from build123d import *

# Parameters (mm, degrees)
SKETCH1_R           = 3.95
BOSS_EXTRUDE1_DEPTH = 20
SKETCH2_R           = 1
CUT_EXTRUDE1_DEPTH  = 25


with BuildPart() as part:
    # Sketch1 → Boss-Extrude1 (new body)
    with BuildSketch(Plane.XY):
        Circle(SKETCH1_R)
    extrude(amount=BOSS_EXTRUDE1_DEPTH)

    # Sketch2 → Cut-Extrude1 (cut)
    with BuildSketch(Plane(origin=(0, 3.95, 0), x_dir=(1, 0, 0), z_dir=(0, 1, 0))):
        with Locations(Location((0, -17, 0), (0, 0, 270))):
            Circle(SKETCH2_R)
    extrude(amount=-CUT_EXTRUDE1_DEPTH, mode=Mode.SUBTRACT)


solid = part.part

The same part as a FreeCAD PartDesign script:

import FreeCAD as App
import Part
import Sketcher
from FreeCAD import Vector

doc = App.newDocument("Part")
params = doc.addObject("Spreadsheet::Sheet", "Params")
for row, (alias, value) in enumerate([
    ("sketch1_diameter", "7.9 mm"),
    ("pad1_length", "20 mm"),
    ("sketch2_diameter", "2 mm"),
    ("pocket1_length", "25 mm"),
], start=1):
    params.set(f"A{row}", alias)
    params.set(f"B{row}", "=" + value)
    params.setAlias(f"B{row}", alias)

body = doc.addObject("PartDesign::Body", "Body")

# Sketch on XY plane
sketch1 = body.newObject("Sketcher::SketchObject", "Sketch")
sketch1.AttachmentSupport = (doc.getObject("XY_Plane"), [""])
sketch1.MapMode = "FlatFace"
sketch1.addGeometry(Part.Circle(Vector(0, 0, 0), Vector(0, 0, 1), 4), False)
sketch1.addConstraint(Sketcher.Constraint("Coincident", 0, 3, -1, 1))
sketch1.addConstraint(Sketcher.Constraint("Diameter", 0, 7.9))
sketch1.setExpression("Constraints[1]", "Params.sketch1_diameter")
pad1 = body.newObject("PartDesign::Pad", "Pad")
pad1.Profile = sketch1
pad1.setExpression("Length", "Params.pad1_length")

# Sketch on XZ plane
sketch2 = body.newObject("Sketcher::SketchObject", "Sketch001")
sketch2.AttachmentSupport = (doc.getObject("XZ_Plane"), [""])
sketch2.MapMode = "FlatFace"
sketch2.AttachmentOffset = App.Placement(Vector(0, 0, -3.95), App.Rotation())
sketch2.addGeometry(Part.Circle(Vector(0, 17, 0), Vector(0, 0, 1), 1), False)
sketch2.addConstraint(Sketcher.Constraint("PointOnObject", 0, 3, -2))
sketch2.addConstraint(Sketcher.Constraint("Diameter", 0, 2.0))
sketch2.addConstraint(Sketcher.Constraint("DistanceY", -1, 1, 0, 3, 17.0))
sketch2.setExpression("Constraints[1]", "Params.sketch2_diameter")
pocket1 = body.newObject("PartDesign::Pocket", "Pocket")
pocket1.Profile = sketch2
pocket1.setExpression("Length", "Params.pocket1_length")
pocket1.Reversed = True

doc.recompute()
